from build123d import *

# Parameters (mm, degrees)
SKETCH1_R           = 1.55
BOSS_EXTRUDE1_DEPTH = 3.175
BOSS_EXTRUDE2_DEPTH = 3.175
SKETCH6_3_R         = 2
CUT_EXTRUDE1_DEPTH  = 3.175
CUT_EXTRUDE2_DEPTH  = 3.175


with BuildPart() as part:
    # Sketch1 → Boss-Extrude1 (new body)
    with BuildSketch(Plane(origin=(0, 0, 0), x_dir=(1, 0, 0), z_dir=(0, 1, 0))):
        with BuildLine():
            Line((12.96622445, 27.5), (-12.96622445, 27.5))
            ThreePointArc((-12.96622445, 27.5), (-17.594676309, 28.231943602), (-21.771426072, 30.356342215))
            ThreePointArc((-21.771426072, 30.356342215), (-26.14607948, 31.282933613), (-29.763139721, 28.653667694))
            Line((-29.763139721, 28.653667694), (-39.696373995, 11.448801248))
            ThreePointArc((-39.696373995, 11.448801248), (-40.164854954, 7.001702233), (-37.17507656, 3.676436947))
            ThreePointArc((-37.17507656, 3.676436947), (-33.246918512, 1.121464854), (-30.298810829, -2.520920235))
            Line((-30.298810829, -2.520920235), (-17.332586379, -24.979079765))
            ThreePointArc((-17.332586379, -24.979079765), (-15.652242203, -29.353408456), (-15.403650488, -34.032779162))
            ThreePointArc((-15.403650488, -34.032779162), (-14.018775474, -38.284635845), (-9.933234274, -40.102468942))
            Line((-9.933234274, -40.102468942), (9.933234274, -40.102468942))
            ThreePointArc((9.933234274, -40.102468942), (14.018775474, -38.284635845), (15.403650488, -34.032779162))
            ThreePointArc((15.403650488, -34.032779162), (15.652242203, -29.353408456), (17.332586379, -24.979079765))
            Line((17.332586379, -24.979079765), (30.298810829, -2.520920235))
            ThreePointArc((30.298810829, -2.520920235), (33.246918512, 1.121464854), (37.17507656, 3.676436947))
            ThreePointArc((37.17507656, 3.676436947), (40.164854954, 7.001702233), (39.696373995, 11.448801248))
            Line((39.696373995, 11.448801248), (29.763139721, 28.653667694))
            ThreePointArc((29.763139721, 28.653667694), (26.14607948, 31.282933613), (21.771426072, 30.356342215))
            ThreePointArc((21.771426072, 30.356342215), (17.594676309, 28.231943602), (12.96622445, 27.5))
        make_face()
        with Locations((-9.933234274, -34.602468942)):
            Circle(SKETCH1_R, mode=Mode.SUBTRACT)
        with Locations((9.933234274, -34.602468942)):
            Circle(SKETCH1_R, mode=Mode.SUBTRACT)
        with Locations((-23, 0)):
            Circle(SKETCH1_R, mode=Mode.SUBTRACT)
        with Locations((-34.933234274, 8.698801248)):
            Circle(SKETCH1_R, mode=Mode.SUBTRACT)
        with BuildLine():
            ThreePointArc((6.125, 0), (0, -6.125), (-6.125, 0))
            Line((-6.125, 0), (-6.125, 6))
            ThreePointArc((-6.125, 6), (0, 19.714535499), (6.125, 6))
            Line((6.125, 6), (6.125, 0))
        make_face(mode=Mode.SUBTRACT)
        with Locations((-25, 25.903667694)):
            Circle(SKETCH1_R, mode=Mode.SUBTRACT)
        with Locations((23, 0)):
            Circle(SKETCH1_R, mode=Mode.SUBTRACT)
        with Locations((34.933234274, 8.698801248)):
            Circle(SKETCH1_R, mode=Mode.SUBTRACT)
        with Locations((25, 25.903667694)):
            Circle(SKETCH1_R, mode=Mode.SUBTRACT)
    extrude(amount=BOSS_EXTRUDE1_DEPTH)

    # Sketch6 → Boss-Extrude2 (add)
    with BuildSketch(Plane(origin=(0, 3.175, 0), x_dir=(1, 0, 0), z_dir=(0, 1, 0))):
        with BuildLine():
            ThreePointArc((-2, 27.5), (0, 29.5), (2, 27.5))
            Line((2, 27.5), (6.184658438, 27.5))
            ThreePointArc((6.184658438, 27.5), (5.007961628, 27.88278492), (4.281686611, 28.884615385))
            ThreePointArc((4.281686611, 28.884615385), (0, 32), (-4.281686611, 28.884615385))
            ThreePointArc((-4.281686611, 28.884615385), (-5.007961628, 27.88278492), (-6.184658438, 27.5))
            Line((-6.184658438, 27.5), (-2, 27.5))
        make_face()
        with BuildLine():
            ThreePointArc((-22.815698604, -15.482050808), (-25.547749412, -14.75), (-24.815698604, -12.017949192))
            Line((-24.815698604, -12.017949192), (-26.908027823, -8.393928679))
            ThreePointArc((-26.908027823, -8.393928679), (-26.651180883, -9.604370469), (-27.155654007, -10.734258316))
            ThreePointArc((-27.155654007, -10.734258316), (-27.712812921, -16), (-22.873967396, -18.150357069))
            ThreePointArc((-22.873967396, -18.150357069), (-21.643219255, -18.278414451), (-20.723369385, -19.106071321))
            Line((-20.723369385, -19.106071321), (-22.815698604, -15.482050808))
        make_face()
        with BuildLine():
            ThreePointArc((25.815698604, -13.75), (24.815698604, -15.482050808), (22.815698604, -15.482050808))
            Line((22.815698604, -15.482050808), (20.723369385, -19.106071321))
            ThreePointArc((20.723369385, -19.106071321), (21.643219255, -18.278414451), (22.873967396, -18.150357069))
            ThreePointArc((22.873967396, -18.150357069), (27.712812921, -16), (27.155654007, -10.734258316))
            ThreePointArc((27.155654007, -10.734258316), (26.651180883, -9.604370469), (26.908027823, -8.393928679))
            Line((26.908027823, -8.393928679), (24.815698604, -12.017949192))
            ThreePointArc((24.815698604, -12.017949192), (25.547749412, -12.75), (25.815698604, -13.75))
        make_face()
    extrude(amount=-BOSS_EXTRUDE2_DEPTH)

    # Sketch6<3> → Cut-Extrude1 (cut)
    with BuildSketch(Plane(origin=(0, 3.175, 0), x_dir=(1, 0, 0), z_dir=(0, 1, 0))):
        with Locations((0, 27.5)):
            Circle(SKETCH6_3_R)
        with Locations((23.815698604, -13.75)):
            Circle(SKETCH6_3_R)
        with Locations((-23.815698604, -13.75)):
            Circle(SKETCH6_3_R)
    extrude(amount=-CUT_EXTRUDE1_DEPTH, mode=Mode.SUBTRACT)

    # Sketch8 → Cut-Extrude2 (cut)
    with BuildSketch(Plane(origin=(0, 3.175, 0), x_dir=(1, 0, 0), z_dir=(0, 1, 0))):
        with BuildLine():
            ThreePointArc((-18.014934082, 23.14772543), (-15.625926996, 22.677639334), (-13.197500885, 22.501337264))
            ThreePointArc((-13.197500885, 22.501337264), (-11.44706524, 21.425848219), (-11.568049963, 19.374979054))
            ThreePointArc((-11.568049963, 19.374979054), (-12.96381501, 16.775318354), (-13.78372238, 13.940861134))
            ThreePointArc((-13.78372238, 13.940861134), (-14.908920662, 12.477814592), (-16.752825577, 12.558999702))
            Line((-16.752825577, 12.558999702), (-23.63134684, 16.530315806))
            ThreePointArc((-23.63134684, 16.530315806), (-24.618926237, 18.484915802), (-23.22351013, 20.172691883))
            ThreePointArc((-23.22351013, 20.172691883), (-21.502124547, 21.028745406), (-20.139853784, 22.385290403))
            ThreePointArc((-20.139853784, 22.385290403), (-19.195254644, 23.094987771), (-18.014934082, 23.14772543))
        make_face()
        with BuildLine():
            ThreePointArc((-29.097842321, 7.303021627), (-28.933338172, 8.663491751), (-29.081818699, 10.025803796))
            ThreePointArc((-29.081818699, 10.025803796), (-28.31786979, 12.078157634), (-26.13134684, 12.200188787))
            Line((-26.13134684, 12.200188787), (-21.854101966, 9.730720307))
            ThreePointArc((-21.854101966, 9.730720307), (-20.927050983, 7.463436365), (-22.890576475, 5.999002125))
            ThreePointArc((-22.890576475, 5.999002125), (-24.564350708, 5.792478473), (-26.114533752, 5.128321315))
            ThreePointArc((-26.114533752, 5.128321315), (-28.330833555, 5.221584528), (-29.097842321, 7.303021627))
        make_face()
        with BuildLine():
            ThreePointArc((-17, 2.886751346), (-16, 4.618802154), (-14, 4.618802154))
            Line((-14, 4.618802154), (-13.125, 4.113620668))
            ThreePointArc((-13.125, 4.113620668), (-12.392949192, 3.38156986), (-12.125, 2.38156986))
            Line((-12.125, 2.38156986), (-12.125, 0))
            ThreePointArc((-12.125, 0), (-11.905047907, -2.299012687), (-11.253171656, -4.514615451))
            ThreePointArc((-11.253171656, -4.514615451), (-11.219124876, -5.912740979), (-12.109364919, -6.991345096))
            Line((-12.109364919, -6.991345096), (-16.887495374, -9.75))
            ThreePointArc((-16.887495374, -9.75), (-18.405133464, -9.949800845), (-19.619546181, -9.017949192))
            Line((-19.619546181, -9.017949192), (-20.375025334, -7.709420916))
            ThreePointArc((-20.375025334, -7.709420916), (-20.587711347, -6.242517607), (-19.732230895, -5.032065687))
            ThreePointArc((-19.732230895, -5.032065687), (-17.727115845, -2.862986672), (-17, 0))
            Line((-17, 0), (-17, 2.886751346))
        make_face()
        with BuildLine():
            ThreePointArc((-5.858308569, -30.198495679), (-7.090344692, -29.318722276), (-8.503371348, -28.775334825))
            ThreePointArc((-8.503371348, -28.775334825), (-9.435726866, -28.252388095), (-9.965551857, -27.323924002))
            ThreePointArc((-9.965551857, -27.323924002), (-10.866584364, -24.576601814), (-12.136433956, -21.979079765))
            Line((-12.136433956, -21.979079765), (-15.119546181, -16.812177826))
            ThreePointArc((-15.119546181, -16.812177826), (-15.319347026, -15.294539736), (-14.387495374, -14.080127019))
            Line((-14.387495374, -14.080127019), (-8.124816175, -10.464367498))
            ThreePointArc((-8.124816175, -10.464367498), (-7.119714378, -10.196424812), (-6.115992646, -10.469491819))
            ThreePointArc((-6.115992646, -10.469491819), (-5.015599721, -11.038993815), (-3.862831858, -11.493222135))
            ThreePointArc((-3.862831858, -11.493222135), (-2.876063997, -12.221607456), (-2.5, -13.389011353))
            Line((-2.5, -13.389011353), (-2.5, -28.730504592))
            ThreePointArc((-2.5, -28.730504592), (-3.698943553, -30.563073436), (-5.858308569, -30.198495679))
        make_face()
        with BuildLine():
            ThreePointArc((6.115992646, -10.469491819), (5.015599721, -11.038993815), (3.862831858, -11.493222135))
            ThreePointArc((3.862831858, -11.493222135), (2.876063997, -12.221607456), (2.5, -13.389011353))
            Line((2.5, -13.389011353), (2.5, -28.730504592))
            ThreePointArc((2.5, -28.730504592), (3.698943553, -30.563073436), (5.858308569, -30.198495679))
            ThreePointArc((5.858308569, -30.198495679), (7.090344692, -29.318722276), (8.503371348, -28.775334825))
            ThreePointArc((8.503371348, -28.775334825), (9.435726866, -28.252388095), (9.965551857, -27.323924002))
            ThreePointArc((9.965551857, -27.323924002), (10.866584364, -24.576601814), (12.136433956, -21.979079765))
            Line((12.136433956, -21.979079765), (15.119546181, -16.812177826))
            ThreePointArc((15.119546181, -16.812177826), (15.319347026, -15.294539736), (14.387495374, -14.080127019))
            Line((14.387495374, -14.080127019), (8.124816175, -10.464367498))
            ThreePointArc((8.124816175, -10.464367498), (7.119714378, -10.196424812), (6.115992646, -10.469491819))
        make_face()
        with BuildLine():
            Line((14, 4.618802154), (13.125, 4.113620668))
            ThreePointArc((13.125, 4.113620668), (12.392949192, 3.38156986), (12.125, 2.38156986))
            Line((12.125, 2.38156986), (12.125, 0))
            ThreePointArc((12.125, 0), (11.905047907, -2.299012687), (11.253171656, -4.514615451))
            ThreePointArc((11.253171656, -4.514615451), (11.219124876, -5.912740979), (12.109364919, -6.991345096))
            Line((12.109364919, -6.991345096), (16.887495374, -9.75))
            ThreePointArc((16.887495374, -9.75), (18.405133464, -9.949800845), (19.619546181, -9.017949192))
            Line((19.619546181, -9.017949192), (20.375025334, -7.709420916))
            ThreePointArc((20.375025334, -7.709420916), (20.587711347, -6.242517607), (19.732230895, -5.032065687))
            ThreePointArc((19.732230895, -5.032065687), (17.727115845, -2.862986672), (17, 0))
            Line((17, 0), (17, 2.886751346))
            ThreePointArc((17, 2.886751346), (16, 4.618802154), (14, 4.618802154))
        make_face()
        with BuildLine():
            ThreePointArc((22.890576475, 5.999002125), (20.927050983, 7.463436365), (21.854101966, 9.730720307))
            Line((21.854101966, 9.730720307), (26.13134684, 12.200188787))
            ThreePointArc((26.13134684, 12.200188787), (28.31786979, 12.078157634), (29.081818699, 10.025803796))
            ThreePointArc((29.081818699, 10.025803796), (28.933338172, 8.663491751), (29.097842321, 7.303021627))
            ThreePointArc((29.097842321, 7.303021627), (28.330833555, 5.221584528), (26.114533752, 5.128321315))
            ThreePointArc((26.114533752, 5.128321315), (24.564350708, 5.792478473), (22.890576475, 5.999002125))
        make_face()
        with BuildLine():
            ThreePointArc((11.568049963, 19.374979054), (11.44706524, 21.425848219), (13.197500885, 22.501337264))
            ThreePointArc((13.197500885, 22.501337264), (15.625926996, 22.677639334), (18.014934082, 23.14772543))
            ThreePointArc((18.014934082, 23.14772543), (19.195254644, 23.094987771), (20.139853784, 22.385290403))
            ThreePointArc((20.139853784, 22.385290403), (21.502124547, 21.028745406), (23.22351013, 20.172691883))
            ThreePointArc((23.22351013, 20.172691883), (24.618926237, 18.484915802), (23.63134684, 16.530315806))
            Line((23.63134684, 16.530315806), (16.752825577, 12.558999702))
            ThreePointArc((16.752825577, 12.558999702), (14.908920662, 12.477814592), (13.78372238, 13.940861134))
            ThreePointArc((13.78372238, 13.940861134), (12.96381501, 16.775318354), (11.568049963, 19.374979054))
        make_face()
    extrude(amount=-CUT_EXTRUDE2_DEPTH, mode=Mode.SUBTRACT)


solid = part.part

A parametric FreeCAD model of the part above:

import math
import FreeCAD as App
import Part
import Sketcher

V = App.Vector
Q = App.Units.Quantity

doc = App.newDocument("Part")
params = doc.addObject("Spreadsheet::Sheet", "Params")
for row, (alias, value) in enumerate([
    ("sketch1_radius", "15 mm"),
    ("sketch1_diameter", "3.1 mm"),
    ("sketch1_radius2", "5.5 mm"),
    ("sketch1_height", "6 mm"),
    ("pad1_length", "3.175 mm"),
    ("sketch2_radius", "2 mm"),
    ("sketch2_radius2", "4.5 mm"),
    ("sketch2_width", "1 mm"),
    ("pad2_length", "3.175 mm"),
    ("sketch3_diameter", "4 mm"),
    ("pocket1_length", "3.175 mm"),
    ("sketch4_radius", "20 mm"),
    ("sketch4_radius2", "2 mm"),
    ("sketch4_radius3", "6 mm"),
    ("sketch4_radius4", "14 mm"),
    ("sketch4_radius5", "21 mm"),
    ("pocket2_length", "3.175 mm"),
], start=1):
    params.set(f"A{row}", alias)
    params.set(f"B{row}", "=" + value)
    params.setAlias(f"B{row}", alias)

body = doc.addObject("PartDesign::Body", "Body")

sketch1 = doc.addObject("Sketcher::SketchObject", "Sketch")
body.addObject(sketch1)
sketch1.AttachmentSupport = (doc.XZ_Plane, [""])
sketch1.MapMode = "FlatFace"
sketch1.addGeometry([
    Part.LineSegment(V(13, -27.5, 0), V(-13, -27.5, 0)),
    Part.ArcOfCircle(Part.Circle(V(-13, -42.5, 0), V(0, 0, 1), 15), math.radians(90), math.radians(126)),
    Part.ArcOfCircle(Part.Circle(V(-25, -25.9, 0), V(0, 0, 1), 5.5), math.radians(-150), math.radians(-54)),
    Part.LineSegment(V(-29.8, -28.7, 0), V(-39.7, -11.4, 0)),
    Part.ArcOfCircle(Part.Circle(V(-34.9, -8.7, 0), V(0, 0, 1), 5.5), math.radians(114), math.radians(210)),
    Part.ArcOfCircle(Part.Circle(V(-43.3, 10, 0), V(0, 0, 1), 15), math.radians(-66), math.radians(-30)),
    Part.LineSegment(V(-30.3, 2.5, 0), V(-17.3, 25, 0)),
    Part.ArcOfCircle(Part.Circle(V(-30.3, 32.5, 0), V(0, 0, 1), 15), math.radians(-30), math.radians(6)),
    Part.ArcOfCircle(Part.Circle(V(-9.9, 34.6, 0), V(0, 0, 1), 5.5), math.radians(90), math.radians(186)),
    Part.LineSegment(V(-9.9, 40.1, 0), V(9.9, 40.1, 0)),
    Part.ArcOfCircle(Part.Circle(V(9.9, 34.6, 0), V(0, 0, 1), 5.5), math.radians(-6), math.radians(90)),
    Part.ArcOfCircle(Part.Circle(V(30.3, 32.5, 0), V(0, 0, 1), 15), math.radians(174), math.radians(210)),
    Part.LineSegment(V(17.3, 25, 0), V(30.3, 2.5, 0)),
    Part.ArcOfCircle(Part.Circle(V(43.3, 10, 0), V(0, 0, 1), 15), math.radians(-150), math.radians(-114)),
    Part.ArcOfCircle(Part.Circle(V(34.9, -8.7, 0), V(0, 0, 1), 5.5), math.radians(-30), math.radians(66)),
    Part.LineSegment(V(39.7, -11.4, 0), V(29.8, -28.7, 0)),
    Part.ArcOfCircle(Part.Circle(V(25, -25.9, 0), V(0, 0, 1), 5.5), math.radians(-126), math.radians(-30)),
    Part.ArcOfCircle(Part.Circle(V(13, -42.5, 0), V(0, 0, 1), 15), math.radians(54), math.radians(90)),
    Part.Circle(V(-9.9, 34.6, 0), V(0, 0, 1), 1.6),
    Part.Circle(V(9.9, 34.6, 0), V(0, 0, 1), 1.6),
    Part.Circle(V(-23, 0, 0), V(0, 0, 1), 1.6),
    Part.Circle(V(-34.9, -8.7, 0), V(0, 0, 1), 1.6),
    Part.Circle(V(-25, -25.9, 0), V(0, 0, 1), 1.6),
    Part.LineSegment(V(6.1, -6, 0), V(6.1, 0, 0)),
    Part.ArcOfCircle(Part.Circle(V(0, 0, 0), V(0, 0, 1), 6.1), math.radians(0), math.radians(180)),
    Part.LineSegment(V(-6.1, 0, 0), V(-6.1, -6, 0)),
    Part.ArcOfCircle(Part.Circle(V(0, -11.5, 0), V(0, 0, 1), 8.2), math.radians(138), math.radians(402)),
    Part.Circle(V(23, 0, 0), V(0, 0, 1), 1.6),
    Part.Circle(V(34.9, -8.7, 0), V(0, 0, 1), 1.6),
    Part.Circle(V(25, -25.9, 0), V(0, 0, 1), 1.6),
], False)
sketch1.addConstraint([
    Sketcher.Constraint("Tangent", 0, 2, 1, 1),
    Sketcher.Constraint("Tangent", 1, 2, 2, 2),
    Sketcher.Constraint("Tangent", 2, 1, 3, 1),
    Sketcher.Constraint("Tangent", 3, 2, 4, 2),
    Sketcher.Constraint("Tangent", 4, 1, 5, 1),
    Sketcher.Constraint("Tangent", 5, 2, 6, 1),
    Sketcher.Constraint("Tangent", 6, 2, 7, 1),
    Sketcher.Constraint("Tangent", 7, 2, 8, 2),
    Sketcher.Constraint("Tangent", 8, 1, 9, 1),
    Sketcher.Constraint("Tangent", 9, 2, 10, 2),
    Sketcher.Constraint("Tangent", 10, 1, 11, 1),
    Sketcher.Constraint("Tangent", 11, 2, 12, 1),
    Sketcher.Constraint("Tangent", 12, 2, 13, 1),
    Sketcher.Constraint("Tangent", 13, 2, 14, 2),
    Sketcher.Constraint("Tangent", 14, 1, 15, 1),
    Sketcher.Constraint("Tangent", 15, 2, 16, 2),
    Sketcher.Constraint("Tangent", 16, 1, 17, 1),
    Sketcher.Constraint("Tangent", 17, 2, 0, 1),
    Sketcher.Constraint("Tangent", 23, 2, 24, 1),
    Sketcher.Constraint("Tangent", 24, 2, 25, 1),
    Sketcher.Constraint("Coincident", 25, 2, 26, 1),
    Sketcher.Constraint("Coincident", 26, 2, 23, 1),
    Sketcher.Constraint("Horizontal", 0),
    Sketcher.Constraint("Horizontal", 9),
    Sketcher.Constraint("Vertical", 23),
    Sketcher.Constraint("Vertical", 25),
    Sketcher.Constraint("Coincident", 24, 3, -1, 1),
    Sketcher.Constraint("Coincident", 18, 3, 8, 3),
    Sketcher.Constraint("Coincident", 19, 3, 10, 3),
    Sketcher.Constraint("Coincident", 21, 3, 4, 3),
    Sketcher.Constraint("Coincident", 22, 3, 2, 3),
    Sketcher.Constraint("Coincident", 28, 3, 14, 3),
    Sketcher.Constraint("Coincident", 29, 3, 16, 3),
    Sketcher.Constraint("Equal", 2, 4),
    Sketcher.Constraint("Equal", 1, 5),
    Sketcher.Constraint("Equal", 5, 7),
    Sketcher.Constraint("Equal", 4, 8),
    Sketcher.Constraint("Equal", 8, 10),
    Sketcher.Constraint("Equal", 7, 11),
    Sketcher.Constraint("Equal", 11, 13),
    Sketcher.Constraint("Equal", 10, 14),
    Sketcher.Constraint("Equal", 14, 16),
    Sketcher.Constraint("Equal", 13, 17),
    Sketcher.Constraint("Equal", 18, 19),
    Sketcher.Constraint("Equal", 19, 20),
    Sketcher.Constraint("Equal", 20, 21),
    Sketcher.Constraint("Equal", 21, 22),
    Sketcher.Constraint("Equal", 22, 27),
    Sketcher.Constraint("Equal", 27, 28),
    Sketcher.Constraint("Equal", 28, 29),
    Sketcher.Constraint("Symmetric", 20, 3, 27, 3, -1, 1),
    Sketcher.Constraint("Symmetric", 7, 3, 11, 3, -2),
    Sketcher.Constraint("Symmetric", 5, 3, 13, 3, -2),
    Sketcher.Constraint("Symmetric", 2, 3, 16, 3, -2),
    Sketcher.Constraint("PointOnObject", 20, 3, -1),
    Sketcher.Constraint("PointOnObject", 26, 3, -2),
    Sketcher.Constraint("Parallel", 3, 12),
    Sketcher.Constraint("Parallel", 6, 15),
    Sketcher.Constraint("Radius", 1, 15.0),
    Sketcher.Constraint("Diameter", 18, 3.1),
    Sketcher.Constraint("Radius", 2, 5.5),
    Sketcher.Constraint("DistanceY", 23, 1, 23, 2, 6.0),
    Sketcher.Constraint("Angle", 3, Q("120 deg")),
    Sketcher.Constraint("DistanceX", 2, 3, -1, 1, 25.0),
    Sketcher.Constraint("DistanceX", 20, 3, -1, 1, 23.0),
    Sketcher.Constraint("Radius", 24, 6.125),
    Sketcher.Constraint("Radius", 26, 8.225),
    Sketcher.Constraint("DistanceX", 4, 3, 8, 3, 25.0),
    Sketcher.Constraint("DistanceY", 1, 3, -1, 1, 42.5),
    Sketcher.Constraint("DistanceX", 0, 2, 0, 1, 25.932449),
    Sketcher.Constraint("DistanceX", 9, 1, 9, 2, 19.866469),
    Sketcher.Constraint("DistanceX", 7, 3, 10, 3, 40.256202),
    Sketcher.Constraint("Distance", 6, 25.932449),
])
sketch1.setExpression("Constraints[58]", "Params.sketch1_radius")
sketch1.setExpression("Constraints[59]", "Params.sketch1_diameter")
sketch1.setExpression("Constraints[60]", "Params.sketch1_radius2")
sketch1.setExpression("Constraints[61]", "Params.sketch1_height")
pad1 = doc.addObject("PartDesign::Pad", "Pad")
body.addObject(pad1)
pad1.Profile = sketch1
pad1.setExpression("Length", "Params.pad1_length")
pad1.Reversed = True

sketch2 = doc.addObject("Sketcher::SketchObject", "Sketch001")
body.addObject(sketch2)
sketch2.AttachmentSupport = (doc.XZ_Plane, [""])
sketch2.MapMode = "FlatFace"
sketch2.AttachmentOffset = App.Placement(V(0, 0, -3.175), App.Rotation())
sketch2.addGeometry([
    Part.ArcOfCircle(Part.Circle(V(0, -27.5, 0), V(0, 0, 1), 2), math.radians(180), math.radians(360)),
    Part.LineSegment(V(2, -27.5, 0), V(6.2, -27.5, 0)),
    Part.ArcOfCircle(Part.Circle(V(6.2, -29.5, 0), V(0, 0, 1), 2), math.radians(90), math.radians(162)),
    Part.ArcOfCircle(Part.Circle(V(0, -27.5, 0), V(0, 0, 1), 4.5), math.radians(-162), math.radians(-18)),
    Part.ArcOfCircle(Part.Circle(V(-6.2, -29.5, 0), V(0, 0, 1), 2), math.radians(18), math.radians(90)),
    Part.LineSegment(V(-6.2, -27.5, 0), V(-2, -27.5, 0)),
    Part.ArcOfCircle(Part.Circle(V(-23.8, 13.8, 0), V(0, 0, 1), 2), math.radians(60), math.radians(240)),
    Part.LineSegment(V(-24.8, 12, 0), V(-26.9, 8.4, 0)),
    Part.ArcOfCircle(Part.Circle(V(-28.6, 9.4, 0), V(0, 0, 1), 2), math.radians(-30), math.radians(42)),
    Part.ArcOfCircle(Part.Circle(V(-23.8, 13.8, 0), V(0, 0, 1), 4.5), math.radians(78), math.radians(222)),
    Part.ArcOfCircle(Part.Circle(V(-22.5, 20.1, 0), V(0, 0, 1), 2), math.radians(-102), math.radians(-30)),
    Part.LineSegment(V(-20.7, 19.1, 0), V(-22.8, 15.5, 0)),
    Part.ArcOfCircle(Part.Circle(V(23.8, 13.8, 0), V(0, 0, 1), 2), math.radians(0), math.radians(120)),
    Part.LineSegment(V(22.8, 15.5, 0), V(20.7, 19.1, 0)),
    Part.ArcOfCircle(Part.Circle(V(22.5, 20.1, 0), V(0, 0, 1), 2), math.radians(-150), math.radians(-78)),
    Part.ArcOfCircle(Part.Circle(V(23.8, 13.8, 0), V(0, 0, 1), 4.5), math.radians(-42), math.radians(102)),
    Part.ArcOfCircle(Part.Circle(V(28.6, 9.4, 0), V(0, 0, 1), 2), math.radians(138), math.radians(210)),
    Part.LineSegment(V(26.9, 8.4, 0), V(24.8, 12, 0)),
    Part.ArcOfCircle(Part.Circle(V(23.8, 13.7, 0), V(0, 0, 1), 2), math.radians(-60), math.radians(0)),
], False)
sketch2.addConstraint([
    Sketcher.Constraint("Coincident", 0, 2, 1, 1),
    Sketcher.Constraint("Tangent", 1, 2, 2, 1),
    Sketcher.Constraint("Tangent", 2, 2, 3, 2),
    Sketcher.Constraint("Tangent", 3, 1, 4, 1),
    Sketcher.Constraint("Tangent", 4, 2, 5, 1),
    Sketcher.Constraint("Coincident", 5, 2, 0, 1),
    Sketcher.Constraint("Coincident", 6, 2, 7, 1),
    Sketcher.Constraint("Tangent", 7, 2, 8, 1),
    Sketcher.Constraint("Tangent", 8, 2, 9, 2),
    Sketcher.Constraint("Tangent", 9, 1, 10, 1),
    Sketcher.Constraint("Tangent", 10, 2, 11, 1),
    Sketcher.Constraint("Coincident", 11, 2, 6, 1),
    Sketcher.Constraint("Coincident", 12, 2, 13, 1),
    Sketcher.Constraint("Tangent", 13, 2, 14, 1),
    Sketcher.Constraint("Tangent", 14, 2, 15, 2),
    Sketcher.Constraint("Tangent", 15, 1, 16, 1),
    Sketcher.Constraint("Tangent", 16, 2, 17, 1),
    Sketcher.Constraint("Coincident", 17, 2, 18, 1),
    Sketcher.Constraint("Tangent", 18, 2, 12, 1),
    Sketcher.Constraint("Horizontal", 1),
    Sketcher.Constraint("Horizontal", 5),
    Sketcher.Constraint("Coincident", 3, 3, 0, 3),
    Sketcher.Constraint("Coincident", 9, 3, 6, 3),
    Sketcher.Constraint("Coincident", 15, 3, 12, 3),
    Sketcher.Constraint("Equal", 0, 2),
    Sketcher.Constraint("Equal", 2, 4),
    Sketcher.Constraint("Equal", 4, 6),
    Sketcher.Constraint("Equal", 6, 8),
    Sketcher.Constraint("Equal", 3, 9),
    Sketcher.Constraint("Equal", 8, 10),
    Sketcher.Constraint("Equal", 10, 12),
    Sketcher.Constraint("Equal", 12, 14),
    Sketcher.Constraint("Equal", 9, 15),
    Sketcher.Constraint("Equal", 14, 16),
    Sketcher.Constraint("Equal", 16, 18),
    Sketcher.Constraint("Symmetric", 2, 3, 4, 3, -2),
    Sketcher.Constraint("Symmetric", 6, 3, 12, 3, -2),
    Sketcher.Constraint("Symmetric", 10, 2, 13, 2, -2),
    Sketcher.Constraint("Symmetric", 7, 2, 16, 2, -2),
    Sketcher.Constraint("Parallel", 7, 11),
    Sketcher.Constraint("Horizontal", 3, 3, 0, 2),
    Sketcher.Constraint("Horizontal", 15, 3, 18, 2),
    Sketcher.Constraint("Equal", 7, 11),
    Sketcher.Constraint("Radius", 0, 2.0),
    Sketcher.Constraint("Radius", 3, 4.5),
    Sketcher.Constraint("Angle", 7, Q("-120 deg")),
    Sketcher.Constraint("DistanceX", 6, 2, 6, 3, 1.0),
    Sketcher.Constraint("DistanceY", 0, 3, -1, 1, 27.5),
    Sketcher.Constraint("DistanceY", -1, 1, 6, 3, 13.75),
    Sketcher.Constraint("DistanceX", 6, 3, -1, 1, 23.815699),
])
sketch2.setExpression("Constraints[43]", "Params.sketch2_radius")
sketch2.setExpression("Constraints[44]", "Params.sketch2_radius2")
sketch2.setExpression("Constraints[46]", "Params.sketch2_width")
pad2 = doc.addObject("PartDesign::Pad", "Pad001")
body.addObject(pad2)
pad2.Profile = sketch2
pad2.setExpression("Length", "Params.pad2_length")

sketch3 = doc.addObject("Sketcher::SketchObject", "Sketch002")
body.addObject(sketch3)
sketch3.AttachmentSupport = (doc.XZ_Plane, [""])
sketch3.MapMode = "FlatFace"
sketch3.AttachmentOffset = App.Placement(V(0, 0, -3.175), App.Rotation())
sketch3.addGeometry([
    Part.Circle(V(0, -27.5, 0), V(0, 0, 1), 2),
    Part.Circle(V(23.8, 13.8, 0), V(0, 0, 1), 2),
    Part.Circle(V(-23.8, 13.8, 0), V(0, 0, 1), 2),
], False)
sketch3.addConstraint([
    Sketcher.Constraint("Equal", 0, 1),
    Sketcher.Constraint("Equal", 1, 2),
    Sketcher.Constraint("Symmetric", 1, 3, 2, 3, -2),
    Sketcher.Constraint("PointOnObject", 0, 3, -2),
    Sketcher.Constraint("Diameter", 0, 4.0),
    Sketcher.Constraint("DistanceY", 0, 3, -1, 1, 27.5),
    Sketcher.Constraint("DistanceY", -1, 1, 1, 3, 13.75),
    Sketcher.Constraint("DistanceX", -1, 1, 1, 3, 23.815699),
])
sketch3.setExpression("Constraints[4]", "Params.sketch3_diameter")
pocket1 = doc.addObject("PartDesign::Pocket", "Pocket")
body.addObject(pocket1)
pocket1.Profile = sketch3
pocket1.setExpression("Length", "Params.pocket1_length")
pocket1.Reversed = True

sketch4 = doc.addObject("Sketcher::SketchObject", "Sketch003")
body.addObject(sketch4)
sketch4.AttachmentSupport = (doc.XZ_Plane, [""])
sketch4.MapMode = "FlatFace"
sketch4.AttachmentOffset = App.Placement(V(0, 0, -3.175), App.Rotation())
sketch4.addGeometry([
    Part.ArcOfCircle(Part.Circle(V(-13, -42.5, 0), V(0, 0, 1), 20), math.radians(90.66), math.radians(104.62)),
    Part.ArcOfCircle(Part.Circle(V(-18.5, -21.2, 0), V(0, 0, 1), 2), math.radians(-144), math.radians(-75)),
    Part.ArcOfCircle(Part.Circle(V(-25, -25.9, 0), V(0, 0, 1), 6), math.radians(36), math.radians(73)),
    Part.ArcOfCircle(Part.Circle(V(-22.6, -18.3, 0), V(0, 0, 1), 2), math.radians(120), math.radians(253)),
    Part.LineSegment(V(-23.6, -16.5, 0), V(-16.8, -12.6, 0)),
    Part.ArcOfCircle(Part.Circle(V(-15.8, -14.3, 0), V(0, 0, 1), 2), math.radians(10), math.radians(120)),
    Part.ArcOfCircle(Part.Circle(V(0, -11.5, 0), V(0, 0, 1), 14), math.radians(-170), math.radians(-146)),
    Part.ArcOfCircle(Part.Circle(V(-13.2, -20.5, 0), V(0, 0, 1), 2), math.radians(-89), math.radians(34)),
    Part.ArcOfCircle(Part.Circle(V(-34.9, -8.7, 0), V(0, 0, 1), 6), math.radians(-13), math.radians(13)),
    Part.ArcOfCircle(Part.Circle(V(-27.2, -6.8, 0), V(0, 0, 1), 2), math.radians(59), math.radians(193)),
    Part.ArcOfCircle(Part.Circle(V(-23, 0, 0), V(0, 0, 1), 6), math.radians(-121), math.radians(-89)),
    Part.ArcOfCircle(Part.Circle(V(-22.9, -8, 0), V(0, 0, 1), 2), math.radians(-60), math.radians(91)),
    Part.LineSegment(V(-21.9, -9.7, 0), V(-26.1, -12.2, 0)),
    Part.ArcOfCircle(Part.Circle(V(-27.1, -10.5, 0), V(0, 0, 1), 2), math.radians(167), math.radians(300)),
    Part.ArcOfCircle(Part.Circle(V(-15, -2.9, 0), V(0, 0, 1), 2), math.radians(180), math.radians(300)),
    Part.LineSegment(V(-17, -2.9, 0), V(-17, 0, 0)),
    Part.ArcOfCircle(Part.Circle(V(-23, 0, 0), V(0, 0, 1), 6), math.radians(0), math.radians(57)),
    Part.ArcOfCircle(Part.Circle(V(-18.6, 6.7, 0), V(0, 0, 1), 2), math.radians(150), math.radians(237)),
    Part.LineSegment(V(-20.4, 7.7, 0), V(-19.6, 9, 0)),
    Part.ArcOfCircle(Part.Circle(V(-17.9, 8, 0), V(0, 0, 1), 2), math.radians(60), math.radians(150)),
    Part.LineSegment(V(-16.9, 9.8, 0), V(-12.1, 7, 0)),
    Part.ArcOfCircle(Part.Circle(V(-13.1, 5.3, 0), V(0, 0, 1), 2), math.radians(-22), math.radians(60)),
    Part.ArcOfCircle(Part.Circle(V(0, 0, 0), V(0, 0, 1), 12.1), math.radians(158), math.radians(180)),
    Part.LineSegment(V(-12.1, 0, 0), V(-12.1, -2.4, 0)),
    Part.ArcOfCircle(Part.Circle(V(-14.1, -2.4, 0), V(0, 0, 1), 2), math.radians(-60), math.radians(0)),
    Part.LineSegment(V(-13.1, -4.1, 0), V(-14, -4.6, 0)),
    Part.ArcOfCircle(Part.Circle(V(-9.9, 34.6, 0), V(0, 0, 1), 6), math.radians(-76), math.radians(-47)),
    Part.ArcOfCircle(Part.Circle(V(-4.5, 28.7, 0), V(0, 0, 1), 2), math.radians(0), math.radians(133)),
    Part.LineSegment(V(-2.5, 28.7, 0), V(-2.5, 13.4, 0)),
    Part.ArcOfCircle(Part.Circle(V(-4.5, 13.4, 0), V(0, 0, 1), 2), math.radians(-71), math.radians(0)),
    Part.ArcOfCircle(Part.Circle(V(0, 0, 0), V(0, 0, 1), 12.1), math.radians(108.58), math.radians(120.29)),
    Part.ArcOfCircle(Part.Circle(V(-7.1, 12.2, 0), V(0, 0, 1), 2), math.radians(-120), math.radians(-60)),
    Part.LineSegment(V(-8.1, 10.5, 0), V(-14.4, 14.1, 0)),
    Part.ArcOfCircle(Part.Circle(V(-13.4, 15.8, 0), V(0, 0, 1), 2), math.radians(150), math.radians(240)),
    Part.LineSegment(V(-15.1, 16.8, 0), V(-12.1, 22, 0)),
    Part.ArcOfCircle(Part.Circle(V(-30.3, 32.5, 0), V(0, 0, 1), 21), math.radians(-30), math.radians(-14.21)),
    Part.ArcOfCircle(Part.Circle(V(-8, 26.8, 0), V(0, 0, 1), 2), math.radians(104), math.radians(166)),
    Part.ArcOfCircle(Part.Circle(V(0, 0, 0), V(0, 0, 1), 12.1), math.radians(59.71), math.radians(71.42)),
    Part.ArcOfCircle(Part.Circle(V(4.5, 13.4, 0), V(0, 0, 1), 2), math.radians(180), math.radians(251)),
    Part.LineSegment(V(2.5, 13.4, 0), V(2.5, 28.7, 0)),
    Part.ArcOfCircle(Part.Circle(V(4.5, 28.7, 0), V(0, 0, 1), 2), math.radians(47), math.radians(180)),
    Part.ArcOfCircle(Part.Circle(V(9.9, 34.6, 0), V(0, 0, 1), 6), math.radians(-133), math.radians(-104)),
    Part.ArcOfCircle(Part.Circle(V(8, 26.8, 0), V(0, 0, 1), 2), math.radians(14), math.radians(76)),
    Part.ArcOfCircle(Part.Circle(V(30.3, 32.5, 0), V(0, 0, 1), 21), math.radians(-165.79), math.radians(-150)),
    Part.LineSegment(V(12.1, 22, 0), V(15.1, 16.8, 0)),
    Part.ArcOfCircle(Part.Circle(V(13.4, 15.8, 0), V(0, 0, 1), 2), math.radians(-60), math.radians(30)),
    Part.LineSegment(V(14.4, 14.1, 0), V(8.1, 10.5, 0)),
    Part.ArcOfCircle(Part.Circle(V(7.1, 12.2, 0), V(0, 0, 1), 2), math.radians(-120), math.radians(-60)),
    Part.LineSegment(V(14, -4.6, 0), V(13.1, -4.1, 0)),
    Part.ArcOfCircle(Part.Circle(V(14.1, -2.4, 0), V(0, 0, 1), 2), math.radians(180), math.radians(240)),
    Part.LineSegment(V(12.1, -2.4, 0), V(12.1, 0, 0)),
    Part.ArcOfCircle(Part.Circle(V(0, 0, 0), V(0, 0, 1), 12.1), math.radians(0), math.radians(22)),
    Part.ArcOfCircle(Part.Circle(V(13.1, 5.3, 0), V(0, 0, 1), 2), math.radians(120), math.radians(202)),
    Part.LineSegment(V(12.1, 7, 0), V(16.9, 9.8, 0)),
    Part.ArcOfCircle(Part.Circle(V(17.9, 8, 0), V(0, 0, 1), 2), math.radians(30), math.radians(120)),
    Part.LineSegment(V(19.6, 9, 0), V(20.4, 7.7, 0)),
    Part.ArcOfCircle(Part.Circle(V(18.6, 6.7, 0), V(0, 0, 1), 2), math.radians(-57), math.radians(30)),
    Part.ArcOfCircle(Part.Circle(V(23, 0, 0), V(0, 0, 1), 6), math.radians(123), math.radians(180)),
    Part.LineSegment(V(17, 0, 0), V(17, -2.9, 0)),
    Part.ArcOfCircle(Part.Circle(V(15, -2.9, 0), V(0, 0, 1), 2), math.radians(-120), math.radians(0)),
    Part.ArcOfCircle(Part.Circle(V(22.9, -8, 0), V(0, 0, 1), 2), math.radians(89), math.radians(240)),
    Part.ArcOfCircle(Part.Circle(V(23, 0, 0), V(0, 0, 1), 6), math.radians(-91), math.radians(-59)),
    Part.ArcOfCircle(Part.Circle(V(27.2, -6.8, 0), V(0, 0, 1), 2), math.radians(-13), math.radians(121)),
    Part.ArcOfCircle(Part.Circle(V(34.9, -8.7, 0), V(0, 0, 1), 6), math.radians(167), math.radians(193)),
    Part.ArcOfCircle(Part.Circle(V(27.1, -10.5, 0), V(0, 0, 1), 2), math.radians(-120), math.radians(13)),
    Part.LineSegment(V(26.1, -12.2, 0), V(21.9, -9.7, 0)),
    Part.ArcOfCircle(Part.Circle(V(13.2, -20.5, 0), V(0, 0, 1), 2), math.radians(146), math.radians(269)),
    Part.ArcOfCircle(Part.Circle(V(0, -11.5, 0), V(0, 0, 1), 14), math.radians(-34), math.radians(-10)),
    Part.ArcOfCircle(Part.Circle(V(15.8, -14.3, 0), V(0, 0, 1), 2), math.radians(60), math.radians(170)),
    Part.LineSegment(V(16.8, -12.6, 0), V(23.6, -16.5, 0)),
    Part.ArcOfCircle(Part.Circle(V(22.6, -18.3, 0), V(0, 0, 1), 2), math.radians(-73), math.radians(60)),
    Part.ArcOfCircle(Part.Circle(V(25, -25.9, 0), V(0, 0, 1), 6), math.radians(107), math.radians(144)),
    Part.ArcOfCircle(Part.Circle(V(18.5, -21.2, 0), V(0, 0, 1), 2), math.radians(-105), math.radians(-36)),
    Part.ArcOfCircle(Part.Circle(V(13, -42.5, 0), V(0, 0, 1), 20), math.radians(75.38), math.radians(89.34)),
], False)
sketch4.addConstraint([
    Sketcher.Constraint("Tangent", 0, 2, 1, 2),
    Sketcher.Constraint("Tangent", 1, 1, 2, 1),
    Sketcher.Constraint("Tangent", 2, 2, 3, 2),
    Sketcher.Constraint("Tangent", 3, 1, 4, 1),
    Sketcher.Constraint("Tangent", 4, 2, 5, 2),
    Sketcher.Constraint("Tangent", 5, 1, 6, 1),
    Sketcher.Constraint("Tangent", 6, 2, 7, 2),
    Sketcher.Constraint("Tangent", 7, 1, 0, 1),
    Sketcher.Constraint("Tangent", 8, 2, 9, 2),
    Sketcher.Constraint("Tangent", 9, 1, 10, 1),
    Sketcher.Constraint("Tangent", 10, 2, 11, 2),
    Sketcher.Constraint("Tangent", 11, 1, 12, 1),
    Sketcher.Constraint("Tangent", 12, 2, 13, 2),
    Sketcher.Constraint("Tangent", 13, 1, 8, 1),
    Sketcher.Constraint("Tangent", 14, 1, 15, 1),
    Sketcher.Constraint("Tangent", 15, 2, 16, 1),
    Sketcher.Constraint("Tangent", 16, 2, 17, 2),
    Sketcher.Constraint("Tangent", 17, 1, 18, 1),
    Sketcher.Constraint("Tangent", 18, 2, 19, 2),
    Sketcher.Constraint("Tangent", 19, 1, 20, 1),
    Sketcher.Constraint("Tangent", 20, 2, 21, 2),
    Sketcher.Constraint("Tangent", 21, 1, 22, 1),
    Sketcher.Constraint("Tangent", 22, 2, 23, 1),
    Sketcher.Constraint("Tangent", 23, 2, 24, 2),
    Sketcher.Constraint("Tangent", 24, 1, 25, 1),
    Sketcher.Constraint("Tangent", 25, 2, 14, 2),
    Sketcher.Constraint("Tangent", 26, 2, 27, 2),
    Sketcher.Constraint("Tangent", 27, 1, 28, 1),
    Sketcher.Constraint("Tangent", 28, 2, 29, 2),
    Sketcher.Constraint("Tangent", 29, 1, 30, 1),
    Sketcher.Constraint("Tangent", 30, 2, 31, 2),
    Sketcher.Constraint("Tangent", 31, 1, 32, 1),
    Sketcher.Constraint("Tangent", 32, 2, 33, 2),
    Sketcher.Constraint("Tangent", 33, 1, 34, 1),
    Sketcher.Constraint("Tangent", 34, 2, 35, 1),
    Sketcher.Constraint("Tangent", 35, 2, 36, 2),
    Sketcher.Constraint("Tangent", 36, 1, 26, 1),
    Sketcher.Constraint("Tangent", 37, 2, 38, 2),
    Sketcher.Constraint("Tangent", 38, 1, 39, 1),
    Sketcher.Constraint("Tangent", 39, 2, 40, 2),
    Sketcher.Constraint("Tangent", 40, 1, 41, 1),
    Sketcher.Constraint("Tangent", 41, 2, 42, 2),
    Sketcher.Constraint("Tangent", 42, 1, 43, 1),
    Sketcher.Constraint("Tangent", 43, 2, 44, 1),
    Sketcher.Constraint("Tangent", 44, 2, 45, 2),
    Sketcher.Constraint("Tangent", 45, 1, 46, 1),
    Sketcher.Constraint("Tangent", 46, 2, 47, 2),
    Sketcher.Constraint("Tangent", 47, 1, 37, 1),
    Sketcher.Constraint("Tangent", 48, 2, 49, 2),
    Sketcher.Constraint("Tangent", 49, 1, 50, 1),
    Sketcher.Constraint("Tangent", 50, 2, 51, 1),
    Sketcher.Constraint("Tangent", 51, 2, 52, 2),
    Sketcher.Constraint("Tangent", 52, 1, 53, 1),
    Sketcher.Constraint("Tangent", 53, 2, 54, 2),
    Sketcher.Constraint("Tangent", 54, 1, 55, 1),
    Sketcher.Constraint("Tangent", 55, 2, 56, 2),
    Sketcher.Constraint("Tangent", 56, 1, 57, 1),
    Sketcher.Constraint("Tangent", 57, 2, 58, 1),
    Sketcher.Constraint("Tangent", 58, 2, 59, 2),
    Sketcher.Constraint("Tangent", 59, 1, 48, 1),
    Sketcher.Constraint("Tangent", 60, 1, 61, 1),
    Sketcher.Constraint("Tangent", 61, 2, 62, 2),
    Sketcher.Constraint("Tangent", 62, 1, 63, 1),
    Sketcher.Constraint("Tangent", 63, 2, 64, 2),
    Sketcher.Constraint("Tangent", 64, 1, 65, 1),
    Sketcher.Constraint("Tangent", 65, 2, 60, 2),
    Sketcher.Constraint("Tangent", 66, 1, 67, 1),
    Sketcher.Constraint("Tangent", 67, 2, 68, 2),
    Sketcher.Constraint("Tangent", 68, 1, 69, 1),
    Sketcher.Constraint("Tangent", 69, 2, 70, 2),
    Sketcher.Constraint("Tangent", 70, 1, 71, 1),
    Sketcher.Constraint("Tangent", 71, 2, 72, 2),
    Sketcher.Constraint("Tangent", 72, 1, 73, 1),
    Sketcher.Constraint("Tangent", 73, 2, 66, 2),
    Sketcher.Constraint("Vertical", 15),
    Sketcher.Constraint("Vertical", 23),
    Sketcher.Constraint("Vertical", 28),
    Sketcher.Constraint("Vertical", 39),
    Sketcher.Constraint("Vertical", 50),
    Sketcher.Constraint("Vertical", 58),
    Sketcher.Constraint("Coincident", 22, 3, -1, 1),
    Sketcher.Constraint("Coincident", 30, 3, -1, 1),
    Sketcher.Constraint("Coincident", 37, 3, -1, 1),
    Sketcher.Constraint("Coincident", 51, 3, -1, 1),
    Sketcher.Constraint("Coincident", 16, 3, 10, 3),
    Sketcher.Constraint("Coincident", 61, 3, 57, 3),
    Sketcher.Constraint("Coincident", 67, 3, 6, 3),
    Sketcher.Constraint("Equal", 1, 3),
    Sketcher.Constraint("Equal", 3, 5),
    Sketcher.Constraint("Equal", 5, 7),
    Sketcher.Constraint("Equal", 2, 8),
    Sketcher.Constraint("Equal", 7, 9),
    Sketcher.Constraint("Equal", 8, 10),
    Sketcher.Constraint("Equal", 9, 11),
    Sketcher.Constraint("Equal", 11, 13),
    Sketcher.Constraint("Equal", 13, 14),
    Sketcher.Constraint("Equal", 10, 16),
    Sketcher.Constraint("Equal", 14, 17),
    Sketcher.Constraint("Equal", 17, 19),
    Sketcher.Constraint("Equal", 19, 21),
    Sketcher.Constraint("Equal", 21, 24),
    Sketcher.Constraint("Equal", 16, 26),
    Sketcher.Constraint("Equal", 24, 27),
    Sketcher.Constraint("Equal", 27, 29),
    Sketcher.Constraint("Equal", 22, 30),
    Sketcher.Constraint("Equal", 29, 31),
    Sketcher.Constraint("Equal", 31, 33),
    Sketcher.Constraint("Equal", 33, 36),
    Sketcher.Constraint("Equal", 30, 37),
    Sketcher.Constraint("Equal", 36, 38),
    Sketcher.Constraint("Equal", 38, 40),
    Sketcher.Constraint("Equal", 26, 41),
    Sketcher.Constraint("Equal", 40, 42),
    Sketcher.Constraint("Equal", 35, 43),
    Sketcher.Constraint("Equal", 42, 45),
    Sketcher.Constraint("Equal", 45, 47),
    Sketcher.Constraint("Equal", 47, 49),
    Sketcher.Constraint("Equal", 37, 51),
    Sketcher.Constraint("Equal", 49, 52),
    Sketcher.Constraint("Equal", 52, 54),
    Sketcher.Constraint("Equal", 54, 56),
    Sketcher.Constraint("Equal", 41, 57),
    Sketcher.Constraint("Equal", 56, 59),
    Sketcher.Constraint("Equal", 59, 60),
    Sketcher.Constraint("Equal", 57, 61),
    Sketcher.Constraint("Equal", 60, 62),
    Sketcher.Constraint("Equal", 61, 63),
    Sketcher.Constraint("Equal", 62, 64),
    Sketcher.Constraint("Equal", 64, 66),
    Sketcher.Constraint("Equal", 6, 67),
    Sketcher.Constraint("Equal", 66, 68),
    Sketcher.Constraint("Equal", 68, 70),
    Sketcher.Constraint("Equal", 63, 71),
    Sketcher.Constraint("Equal", 70, 72),
    Sketcher.Constraint("Equal", 0, 73),
    Sketcher.Constraint("Symmetric", 10, 3, 57, 3, -1, 1),
    Sketcher.Constraint("Symmetric", 27, 3, 40, 3, -2),
    Sketcher.Constraint("Symmetric", 36, 3, 42, 3, -2),
    Sketcher.Constraint("Symmetric", 33, 3, 45, 3, -2),
    Sketcher.Constraint("Symmetric", 19, 3, 54, 3, -2),
    Sketcher.Constraint("Symmetric", 17, 3, 56, 3, -2),
    Sketcher.Constraint("Symmetric", 8, 3, 63, 3, -2),
    Sketcher.Constraint("Symmetric", 7, 3, 66, 3, -2),
    Sketcher.Constraint("Symmetric", 3, 3, 70, 3, -2),
    Sketcher.Constraint("Symmetric", 1, 3, 72, 3, -2),
    Sketcher.Constraint("Symmetric", 24, 1, 48, 2, -2),
    Sketcher.Constraint("Symmetric", 12, 2, 64, 1, -2),
    Sketcher.Constraint("Parallel", 4, 12),
    Sketcher.Constraint("Perpendicular", 18, 20),
    Sketcher.Constraint("Parallel", 12, 25),
    Sketcher.Constraint("Parallel", 20, 32),
    Sketcher.Constraint("Perpendicular", 32, 34),
    Sketcher.Constraint("Perpendicular", 25, 44),
    Sketcher.Constraint("Perpendicular", 44, 46),
    Sketcher.Constraint("Perpendicular", 34, 48),
    Sketcher.Constraint("Parallel", 46, 53),
    Sketcher.Constraint("Parallel", 65, 69),
    Sketcher.Constraint("Radius", 0, 20.0),
    Sketcher.Constraint("Radius", 1, 2.0),
    Sketcher.Constraint("Radius", 2, 6.0),
    Sketcher.Constraint("Radius", 6, 14.0),
    Sketcher.Constraint("Radius", 35, 21.0),
    Sketcher.Constraint("Angle", 4, Q("30 deg")),
    Sketcher.Constraint("DistanceX", 2, 3, -1, 1, 25.0),
    Sketcher.Constraint("DistanceX", 10, 3, -1, 1, 23.0),
    Sketcher.Constraint("Radius", 22, 12.125),
    Sketcher.Constraint("DistanceY", 0, 3, -1, 1, 42.5),
    Sketcher.Constraint("DistanceX", 27, 3, -1, 1, 4.5),
    Sketcher.Constraint("DistanceY", -1, 1, 19, 1, 9.75),
    Sketcher.Constraint("DistanceY", 4, 2, -1, 1, 12.559),
    Sketcher.Constraint("DistanceY", 15, 1, 15, 2, 2.886751),
    Sketcher.Constraint("DistanceY", 8, 3, -1, 1, 8.698801),
    Sketcher.Constraint("DistanceX", 11, 3, -1, 1, 22.854102),
    Sketcher.Constraint("DistanceX", 7, 1, -1, 1, 13.197501),
    Sketcher.Constraint("Distance", 18, 1.510958),
    Sketcher.Constraint("Distance", 32, 7.231519),
    Sketcher.Constraint("DistanceY", 28, 2, 28, 1, 15.341493),
    Sketcher.Constraint("DistanceX", 7, 3, -1, 1, 13.220629),
    Sketcher.Constraint("DistanceX", 9, 3, -1, 1, 27.152712),
    Sketcher.Constraint("DistanceY", -1, 1, 26, 3, 34.602469),
    Sketcher.Constraint("DistanceY", -1, 1, 31, 3, 12.196418),
    Sketcher.Constraint("DistanceY", -1, 1, 35, 3, 32.47908),
    Sketcher.Constraint("DistanceY", 1, 1, -1, 1, 22.38529),
])
sketch4.setExpression("Constraints[157]", "Params.sketch4_radius")
sketch4.setExpression("Constraints[158]", "Params.sketch4_radius2")
sketch4.setExpression("Constraints[159]", "Params.sketch4_radius3")
sketch4.setExpression("Constraints[160]", "Params.sketch4_radius4")
sketch4.setExpression("Constraints[161]", "Params.sketch4_radius5")
pocket2 = doc.addObject("PartDesign::Pocket", "Pocket001")
body.addObject(pocket2)
pocket2.Profile = sketch4
pocket2.setExpression("Length", "Params.pocket2_length")
pocket2.Reversed = True

doc.recompute()
